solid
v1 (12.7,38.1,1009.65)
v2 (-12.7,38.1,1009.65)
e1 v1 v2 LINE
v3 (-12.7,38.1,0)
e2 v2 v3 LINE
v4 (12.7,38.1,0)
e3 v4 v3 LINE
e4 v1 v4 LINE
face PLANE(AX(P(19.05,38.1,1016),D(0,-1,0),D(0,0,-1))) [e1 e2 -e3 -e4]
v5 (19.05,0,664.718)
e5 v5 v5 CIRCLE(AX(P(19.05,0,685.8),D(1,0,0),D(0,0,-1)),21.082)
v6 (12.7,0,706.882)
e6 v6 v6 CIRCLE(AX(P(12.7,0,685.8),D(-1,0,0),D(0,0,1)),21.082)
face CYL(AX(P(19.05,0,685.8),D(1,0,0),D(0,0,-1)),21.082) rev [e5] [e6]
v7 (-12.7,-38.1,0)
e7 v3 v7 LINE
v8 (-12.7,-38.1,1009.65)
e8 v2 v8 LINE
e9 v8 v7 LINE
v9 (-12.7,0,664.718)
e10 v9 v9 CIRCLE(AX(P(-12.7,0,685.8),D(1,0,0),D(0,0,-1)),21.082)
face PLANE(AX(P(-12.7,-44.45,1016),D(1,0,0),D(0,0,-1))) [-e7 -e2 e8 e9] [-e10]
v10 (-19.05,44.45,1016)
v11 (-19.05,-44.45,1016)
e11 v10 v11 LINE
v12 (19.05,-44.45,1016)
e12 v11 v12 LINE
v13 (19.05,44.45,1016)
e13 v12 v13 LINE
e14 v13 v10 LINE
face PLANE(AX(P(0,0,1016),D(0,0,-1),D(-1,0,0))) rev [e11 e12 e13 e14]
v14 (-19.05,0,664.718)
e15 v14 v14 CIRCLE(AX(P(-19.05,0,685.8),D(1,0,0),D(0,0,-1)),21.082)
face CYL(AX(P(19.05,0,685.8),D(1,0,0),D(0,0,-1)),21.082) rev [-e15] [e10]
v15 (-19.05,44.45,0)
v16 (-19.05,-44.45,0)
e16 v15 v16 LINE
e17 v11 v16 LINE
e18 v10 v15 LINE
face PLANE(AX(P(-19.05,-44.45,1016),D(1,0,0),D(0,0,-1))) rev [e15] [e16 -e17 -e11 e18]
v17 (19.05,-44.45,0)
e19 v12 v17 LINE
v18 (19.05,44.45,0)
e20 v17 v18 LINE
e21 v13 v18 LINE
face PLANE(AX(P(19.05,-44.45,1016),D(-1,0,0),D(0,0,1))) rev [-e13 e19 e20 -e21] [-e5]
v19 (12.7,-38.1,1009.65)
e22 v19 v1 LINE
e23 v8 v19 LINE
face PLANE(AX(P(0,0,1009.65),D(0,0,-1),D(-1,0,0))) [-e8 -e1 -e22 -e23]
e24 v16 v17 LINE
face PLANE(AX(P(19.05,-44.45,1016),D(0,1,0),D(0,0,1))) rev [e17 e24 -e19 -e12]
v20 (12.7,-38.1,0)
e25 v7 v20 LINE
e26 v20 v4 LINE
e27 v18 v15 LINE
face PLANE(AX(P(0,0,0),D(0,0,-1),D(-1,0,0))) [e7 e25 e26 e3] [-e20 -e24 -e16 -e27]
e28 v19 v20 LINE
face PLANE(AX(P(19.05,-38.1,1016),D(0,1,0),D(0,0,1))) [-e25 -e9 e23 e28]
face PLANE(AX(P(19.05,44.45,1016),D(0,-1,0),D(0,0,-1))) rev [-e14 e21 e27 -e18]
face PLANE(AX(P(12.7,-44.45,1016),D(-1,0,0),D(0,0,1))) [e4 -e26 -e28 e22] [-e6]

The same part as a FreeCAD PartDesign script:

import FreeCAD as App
import Part
import Sketcher
Q = App.Units.Quantity


def faces_at(feature, points):
    """Names of the faces that lie closest to the given points."""
    faces = feature.Shape.Faces
    near = lambda p: min(range(len(faces)), key=lambda i: faces[i].distToShape(Part.Vertex(*p))[0])
    return sorted({f"Face{near(p) + 1}" for p in points})


def add_polygon(sketch, points):
    """Adds a closed chain of lines whose ends are joined by coincident constraints."""
    first, n = sketch.GeometryCount, len(points)
    for a, b in zip(points, points[1:] + points[:1]):
        sketch.addGeometry(Part.LineSegment(App.Vector(*a, 0), App.Vector(*b, 0)), False)
    for i in range(n):
        sketch.addConstraint(Sketcher.Constraint("Coincident", first + i, 2, first + (i + 1) % n, 1))

doc = App.newDocument("Part")
body = doc.addObject("PartDesign::Body", "Body")

# Sketch on XY plane
sketch1 = doc.addObject("Sketcher::SketchObject", "Sketch")
body.addObject(sketch1)
sketch1.AttachmentSupport = (doc.XY_Plane, [""])
sketch1.MapMode = "FlatFace"
add_polygon(sketch1, [(-19.05, -44.45), (19.05, -44.45), (19.05, 44.45), (-19.05, 44.45)])  # lines 0-3
sketch1.addConstraint([
    Sketcher.Constraint("Horizontal", 0),
    Sketcher.Constraint("Vertical", 1),
    Sketcher.Constraint("Horizontal", 2),
    Sketcher.Constraint("Vertical", 3),
    Sketcher.Constraint("Symmetric", 0, 2, 2, 2, -1, 1),
    Sketcher.Constraint("DistanceX", 0, 1, 0, 2, Q("1.5 in")),
    Sketcher.Constraint("DistanceY", 1, 1, 1, 2, Q("3.5 in")),
])
pad1 = doc.addObject("PartDesign::Pad", "Pad")
body.addObject(pad1)
pad1.Profile = sketch1
pad1.Length = Q("40 in")
doc.recompute()

thickness = doc.addObject("PartDesign::Thickness", "Thickness")
body.addObject(thickness)
thickness.Base = (pad1, faces_at(pad1, [(0, 0, 0)]))
thickness.Value = Q("0.25 in")
thickness.Reversed = True
thickness.Join = "Intersection"

# Sketch on YZ plane
sketch2 = doc.addObject("Sketcher::SketchObject", "Sketch001")
body.addObject(sketch2)
sketch2.AttachmentSupport = (doc.YZ_Plane, [""])
sketch2.MapMode = "FlatFace"
sketch2.AttachmentOffset = App.Placement(App.Vector(0, 0, 0.75 * 25.4), App.Rotation())
sketch2.addGeometry(Part.Circle(App.Vector(0, 685.8, 0), App.Vector(0, 0, 1), 21.082), False)
sketch2.addConstraint([
    Sketcher.Constraint("PointOnObject", 0, 3, -2),
    Sketcher.Constraint("Diameter", 0, Q("1.66 in")),
    Sketcher.Constraint("DistanceY", -1, 1, 0, 3, Q("27 in")),
])
doc.recompute()
hole = doc.addObject("PartDesign::Hole", "Hole")
body.addObject(hole)
hole.Profile = sketch2
hole.ThreadType = "None"
hole.Diameter = Q("1.66 in")
hole.DepthType = "ThroughAll"

doc.recompute()
